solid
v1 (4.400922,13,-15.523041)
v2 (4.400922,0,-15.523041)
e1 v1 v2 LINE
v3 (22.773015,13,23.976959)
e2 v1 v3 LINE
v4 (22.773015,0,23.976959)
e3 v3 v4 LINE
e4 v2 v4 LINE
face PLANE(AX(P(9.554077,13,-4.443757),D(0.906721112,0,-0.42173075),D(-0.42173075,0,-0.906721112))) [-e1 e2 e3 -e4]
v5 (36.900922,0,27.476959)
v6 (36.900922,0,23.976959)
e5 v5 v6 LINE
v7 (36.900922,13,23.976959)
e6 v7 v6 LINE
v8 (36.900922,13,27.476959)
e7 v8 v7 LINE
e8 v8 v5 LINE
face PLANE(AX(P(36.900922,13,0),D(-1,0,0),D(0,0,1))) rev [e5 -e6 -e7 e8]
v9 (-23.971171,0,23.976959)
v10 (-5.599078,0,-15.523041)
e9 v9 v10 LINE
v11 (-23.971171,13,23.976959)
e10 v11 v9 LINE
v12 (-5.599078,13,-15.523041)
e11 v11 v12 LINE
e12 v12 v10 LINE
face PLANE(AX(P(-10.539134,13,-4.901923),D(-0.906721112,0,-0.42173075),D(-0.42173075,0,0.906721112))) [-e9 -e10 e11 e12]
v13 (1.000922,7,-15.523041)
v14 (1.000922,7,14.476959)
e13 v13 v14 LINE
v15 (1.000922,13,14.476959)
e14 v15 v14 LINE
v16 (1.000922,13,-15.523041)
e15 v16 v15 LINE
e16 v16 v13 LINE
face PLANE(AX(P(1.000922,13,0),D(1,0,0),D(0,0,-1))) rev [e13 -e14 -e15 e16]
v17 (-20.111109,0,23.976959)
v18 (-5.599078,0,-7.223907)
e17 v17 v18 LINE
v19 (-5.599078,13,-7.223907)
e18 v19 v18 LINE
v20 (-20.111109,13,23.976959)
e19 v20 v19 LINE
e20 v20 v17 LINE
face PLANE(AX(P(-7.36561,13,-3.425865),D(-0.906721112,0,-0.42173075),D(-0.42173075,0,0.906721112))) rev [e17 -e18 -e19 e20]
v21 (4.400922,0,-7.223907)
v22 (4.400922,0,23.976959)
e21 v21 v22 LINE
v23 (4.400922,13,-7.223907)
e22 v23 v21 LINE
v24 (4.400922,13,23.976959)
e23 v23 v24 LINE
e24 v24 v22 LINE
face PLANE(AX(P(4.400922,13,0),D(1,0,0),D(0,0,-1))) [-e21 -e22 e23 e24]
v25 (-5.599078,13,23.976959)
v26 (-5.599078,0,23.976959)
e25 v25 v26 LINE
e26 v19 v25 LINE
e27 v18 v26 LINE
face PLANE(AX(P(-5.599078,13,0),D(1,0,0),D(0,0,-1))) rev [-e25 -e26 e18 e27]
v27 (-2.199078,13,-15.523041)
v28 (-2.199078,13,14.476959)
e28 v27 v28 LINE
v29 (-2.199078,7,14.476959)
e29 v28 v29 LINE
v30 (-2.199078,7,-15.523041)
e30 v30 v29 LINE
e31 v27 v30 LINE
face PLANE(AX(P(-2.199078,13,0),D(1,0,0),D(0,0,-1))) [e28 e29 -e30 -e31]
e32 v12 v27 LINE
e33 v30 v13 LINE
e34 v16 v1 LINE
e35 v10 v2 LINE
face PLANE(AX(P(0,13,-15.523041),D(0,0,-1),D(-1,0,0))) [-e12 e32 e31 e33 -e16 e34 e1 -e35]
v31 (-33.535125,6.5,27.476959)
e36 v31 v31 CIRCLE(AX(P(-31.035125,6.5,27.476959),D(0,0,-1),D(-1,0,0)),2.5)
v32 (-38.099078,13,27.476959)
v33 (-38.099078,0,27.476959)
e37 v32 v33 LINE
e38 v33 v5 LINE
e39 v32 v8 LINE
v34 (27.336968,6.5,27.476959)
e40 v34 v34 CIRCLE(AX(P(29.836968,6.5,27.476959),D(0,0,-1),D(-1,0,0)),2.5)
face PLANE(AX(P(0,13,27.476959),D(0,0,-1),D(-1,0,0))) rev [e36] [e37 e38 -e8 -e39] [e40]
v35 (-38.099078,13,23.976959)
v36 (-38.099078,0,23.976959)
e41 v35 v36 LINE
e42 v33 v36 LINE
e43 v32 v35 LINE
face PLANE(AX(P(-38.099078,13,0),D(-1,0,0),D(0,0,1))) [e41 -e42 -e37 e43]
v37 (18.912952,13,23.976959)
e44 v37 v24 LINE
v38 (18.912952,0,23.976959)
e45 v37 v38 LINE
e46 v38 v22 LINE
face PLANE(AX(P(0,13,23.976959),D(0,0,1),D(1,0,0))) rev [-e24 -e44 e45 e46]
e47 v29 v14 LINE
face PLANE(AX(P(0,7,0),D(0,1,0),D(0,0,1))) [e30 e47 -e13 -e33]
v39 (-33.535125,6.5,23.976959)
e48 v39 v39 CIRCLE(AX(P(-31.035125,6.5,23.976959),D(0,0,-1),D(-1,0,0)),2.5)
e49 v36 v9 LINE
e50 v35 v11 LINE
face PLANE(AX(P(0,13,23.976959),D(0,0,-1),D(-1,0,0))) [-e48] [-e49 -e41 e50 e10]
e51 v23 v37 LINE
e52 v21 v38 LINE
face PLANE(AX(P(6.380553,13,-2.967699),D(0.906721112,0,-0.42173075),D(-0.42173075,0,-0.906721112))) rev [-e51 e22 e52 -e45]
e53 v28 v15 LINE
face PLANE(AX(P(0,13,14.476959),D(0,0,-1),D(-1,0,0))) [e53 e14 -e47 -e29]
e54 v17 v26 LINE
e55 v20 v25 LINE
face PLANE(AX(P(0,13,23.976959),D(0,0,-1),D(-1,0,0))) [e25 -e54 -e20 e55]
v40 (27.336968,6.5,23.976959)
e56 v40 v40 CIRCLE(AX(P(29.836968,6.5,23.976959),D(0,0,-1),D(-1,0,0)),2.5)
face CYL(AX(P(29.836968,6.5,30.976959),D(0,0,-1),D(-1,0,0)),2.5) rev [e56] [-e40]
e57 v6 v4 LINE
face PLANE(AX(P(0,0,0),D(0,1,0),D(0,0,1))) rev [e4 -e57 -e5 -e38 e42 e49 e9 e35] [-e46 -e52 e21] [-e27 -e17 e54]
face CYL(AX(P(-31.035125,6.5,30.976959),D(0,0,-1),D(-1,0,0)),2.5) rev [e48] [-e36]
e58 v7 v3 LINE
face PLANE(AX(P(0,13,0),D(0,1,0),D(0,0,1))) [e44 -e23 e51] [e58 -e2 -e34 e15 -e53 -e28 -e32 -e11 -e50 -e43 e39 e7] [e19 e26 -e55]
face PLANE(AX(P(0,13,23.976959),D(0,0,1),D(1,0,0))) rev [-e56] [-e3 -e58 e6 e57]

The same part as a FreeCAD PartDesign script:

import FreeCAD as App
import Part
import Sketcher

V = App.Vector

doc = App.newDocument("Part")
body = doc.addObject("PartDesign::Body", "Body")

sketch1 = doc.addObject("Sketcher::SketchObject", "Sketch")
body.addObject(sketch1)
sketch1.AttachmentSupport = (doc.XZ_Plane, [""])
sketch1.MapMode = "FlatFace"
sketch1.addGeometry([
    Part.LineSegment(V(-5.599078, -15.523041, 0), V(-23.971171, 23.976959, 0)),
    Part.LineSegment(V(-23.971171, 23.976959, 0), V(-38.099078, 23.976959, 0)),
    Part.LineSegment(V(-38.099078, 23.976959, 0), V(-38.099078, 27.476959, 0)),
    Part.LineSegment(V(-38.099078, 27.476959, 0), V(36.900922, 27.476959, 0)),
    Part.LineSegment(V(36.900922, 27.476959, 0), V(36.900922, 23.976959, 0)),
    Part.LineSegment(V(36.900922, 23.976959, 0), V(22.773015, 23.976959, 0)),
    Part.LineSegment(V(22.773015, 23.976959, 0), V(4.400922, -15.523041, 0)),
    Part.LineSegment(V(4.400922, -15.523041, 0), V(1.000922, -15.523041, 0)),
    Part.LineSegment(V(1.000922, -15.523041, 0), V(1.000922, 14.476959, 0)),
    Part.LineSegment(V(1.000922, 14.476959, 0), V(-2.199078, 14.476959, 0)),
    Part.LineSegment(V(-2.199078, 14.476959, 0), V(-2.199078, -15.523041, 0)),
    Part.LineSegment(V(-2.199078, -15.523041, 0), V(-5.599078, -15.523041, 0)),
    Part.LineSegment(V(-20.111109, 23.976959, 0), V(-5.599078, -7.223907, 0)),
    Part.LineSegment(V(-5.599078, -7.223907, 0), V(-5.599078, 23.976959, 0)),
    Part.LineSegment(V(-5.599078, 23.976959, 0), V(-20.111109, 23.976959, 0)),
    Part.LineSegment(V(4.400922, 23.976959, 0), V(4.400922, -7.223907, 0)),
    Part.LineSegment(V(4.400922, -7.223907, 0), V(18.912952, 23.976959, 0)),
    Part.LineSegment(V(18.912952, 23.976959, 0), V(4.400922, 23.976959, 0)),
], False)
sketch1.addConstraint([
    Sketcher.Constraint("Coincident", 0, 2, 1, 1),
    Sketcher.Constraint("Coincident", 1, 2, 2, 1),
    Sketcher.Constraint("Coincident", 2, 2, 3, 1),
    Sketcher.Constraint("Coincident", 3, 2, 4, 1),
    Sketcher.Constraint("Coincident", 4, 2, 5, 1),
    Sketcher.Constraint("Coincident", 5, 2, 6, 1),
    Sketcher.Constraint("Coincident", 6, 2, 7, 1),
    Sketcher.Constraint("Coincident", 7, 2, 8, 1),
    Sketcher.Constraint("Coincident", 8, 2, 9, 1),
    Sketcher.Constraint("Coincident", 9, 2, 10, 1),
    Sketcher.Constraint("Coincident", 10, 2, 11, 1),
    Sketcher.Constraint("Coincident", 11, 2, 0, 1),
    Sketcher.Constraint("Coincident", 12, 2, 13, 1),
    Sketcher.Constraint("Coincident", 13, 2, 14, 1),
    Sketcher.Constraint("Coincident", 14, 2, 12, 1),
    Sketcher.Constraint("Coincident", 15, 2, 16, 1),
    Sketcher.Constraint("Coincident", 16, 2, 17, 1),
    Sketcher.Constraint("Coincident", 17, 2, 15, 1),
    Sketcher.Constraint("Horizontal", 1),
    Sketcher.Constraint("Vertical", 2),
    Sketcher.Constraint("Horizontal", 3),
    Sketcher.Constraint("Vertical", 4),
    Sketcher.Constraint("Horizontal", 5),
    Sketcher.Constraint("Horizontal", 7),
    Sketcher.Constraint("Vertical", 8),
    Sketcher.Constraint("Horizontal", 9),
    Sketcher.Constraint("Vertical", 10),
    Sketcher.Constraint("Horizontal", 11),
    Sketcher.Constraint("Vertical", 13),
    Sketcher.Constraint("Horizontal", 14),
    Sketcher.Constraint("Vertical", 15),
    Sketcher.Constraint("Horizontal", 17),
    Sketcher.Constraint("Parallel", 0, 12),
    Sketcher.Constraint("Parallel", 6, 16),
    Sketcher.Constraint("Horizontal", 1, 2, 4, 2),
    Sketcher.Constraint("Horizontal", 7, 2, 10, 2),
    Sketcher.Constraint("Horizontal", 5, 2, 13, 2),
    Sketcher.Constraint("Horizontal", 12, 2, 15, 2),
    Sketcher.Constraint("Horizontal", 14, 2, 16, 2),
    Sketcher.Constraint("Vertical", 11, 2, 12, 2),
    Sketcher.Constraint("Vertical", 6, 2, 15, 2),
    Sketcher.Constraint("Equal", 1, 5),
    Sketcher.Constraint("Equal", 7, 11),
    Sketcher.Constraint("Equal", 14, 17),
    Sketcher.Constraint("DistanceX", 3, 1, 3, 2, 75.0),
    Sketcher.Constraint("DistanceY", 8, 1, 8, 2, 30.0),
    Sketcher.Constraint("DistanceX", 7, 2, 7, 1, 3.4),
    Sketcher.Constraint("DistanceX", 9, 2, 9, 1, 3.2),
    Sketcher.Constraint("DistanceY", 2, 1, 2, 2, 3.5),
    Sketcher.Constraint("DistanceY", 6, 2, 3, 2, 43.0),
    Sketcher.Constraint("DistanceX", 14, 2, 14, 1, 14.512031),
    Sketcher.Constraint("Distance", 0, 43.56356),
    Sketcher.Constraint("DistanceX", 0, 2, -1, 1, 23.971171),
    Sketcher.Constraint("DistanceY", -1, 1, 0, 2, 23.976959),
])
pad1 = doc.addObject("PartDesign::Pad", "Pad")
body.addObject(pad1)
pad1.Profile = sketch1
pad1.Length = 13
pad1.Reversed = True

sketch2 = doc.addObject("Sketcher::SketchObject", "Sketch001")
body.addObject(sketch2)
sketch2.AttachmentSupport = (doc.XZ_Plane, [""])
sketch2.MapMode = "FlatFace"
sketch2.addGeometry([
    Part.LineSegment(V(-2.199078, -15.523041, 0), V(-2.199078, 14.476959, 0)),
    Part.LineSegment(V(-2.199078, 14.476959, 0), V(1.000922, 14.476959, 0)),
    Part.LineSegment(V(1.000922, 14.476959, 0), V(1.000922, -15.523041, 0)),
    Part.LineSegment(V(1.000922, -15.523041, 0), V(-2.199078, -15.523041, 0)),
], False)
sketch2.addConstraint([
    Sketcher.Constraint("Coincident", 0, 2, 1, 1),
    Sketcher.Constraint("Coincident", 1, 2, 2, 1),
    Sketcher.Constraint("Coincident", 2, 2, 3, 1),
    Sketcher.Constraint("Coincident", 3, 2, 0, 1),
    Sketcher.Constraint("Vertical", 0),
    Sketcher.Constraint("Horizontal", 1),
    Sketcher.Constraint("Vertical", 2),
    Sketcher.Constraint("Horizontal", 3),
    Sketcher.Constraint("DistanceY", 0, 1, 0, 2, 30.0),
    Sketcher.Constraint("DistanceX", 1, 1, 1, 2, 3.2),
    Sketcher.Constraint("DistanceX", 0, 2, -1, 1, 2.199078),
    Sketcher.Constraint("DistanceY", -1, 1, 0, 2, 14.476959),
])
pad2 = doc.addObject("PartDesign::Pad", "Pad001")
body.addObject(pad2)
pad2.Profile = sketch2
pad2.Length = 7
pad2.Reversed = True

sketch3 = doc.addObject("Sketcher::SketchObject", "Sketch002")
body.addObject(sketch3)
sketch3.AttachmentSupport = (doc.XY_Plane, [""])
sketch3.MapMode = "FlatFace"
sketch3.AttachmentOffset = App.Placement(V(0, 0, 23.976959), App.Rotation())
sketch3.addGeometry([
    Part.Circle(V(-31.035125, 6.5, 0), V(0, 0, 1), 2.5),
    Part.Circle(V(29.836968, 6.5, 0), V(0, 0, 1), 2.5),
], False)
sketch3.addConstraint([
    Sketcher.Constraint("Equal", 0, 1),
    Sketcher.Constraint("Horizontal", 0, 3, 1, 3),
    Sketcher.Constraint("Diameter", 0, 5.0),
    Sketcher.Constraint("DistanceY", -1, 1, 0, 3, 6.5),
    Sketcher.Constraint("DistanceX", -1, 1, 1, 3, 29.836968),
    Sketcher.Constraint("DistanceX", 0, 3, -1, 1, 31.035125),
])
pocket1 = doc.addObject("PartDesign::Pocket", "Pocket")
body.addObject(pocket1)
pocket1.Profile = sketch3
pocket1.Length = 7
pocket1.Reversed = True

doc.recompute()
